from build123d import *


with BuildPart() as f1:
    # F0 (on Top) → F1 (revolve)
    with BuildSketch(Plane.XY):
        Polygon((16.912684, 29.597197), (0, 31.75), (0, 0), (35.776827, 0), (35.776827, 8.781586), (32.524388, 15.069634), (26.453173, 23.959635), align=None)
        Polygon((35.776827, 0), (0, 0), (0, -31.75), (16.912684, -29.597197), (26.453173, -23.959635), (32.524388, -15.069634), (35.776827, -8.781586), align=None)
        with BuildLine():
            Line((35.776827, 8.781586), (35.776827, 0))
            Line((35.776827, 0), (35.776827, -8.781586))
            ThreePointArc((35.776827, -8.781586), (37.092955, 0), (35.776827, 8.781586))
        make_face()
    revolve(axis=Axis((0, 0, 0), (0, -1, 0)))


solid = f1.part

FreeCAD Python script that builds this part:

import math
import FreeCAD as App
import Part
import Sketcher

V = App.Vector
Q = App.Units.Quantity

doc = App.newDocument("Part")
body = doc.addObject("PartDesign::Body", "Body")

# Sketch on XY plane
sketch1 = body.newObject("Sketcher::SketchObject", "Sketch")
sketch1.AttachmentSupport = (doc.getObject("XY_Plane"), [""])
sketch1.MapMode = "FlatFace"
sketch1.addGeometry(Part.LineSegment(V(17, 30, 0), V(0, 32, 0)), False)
sketch1.addGeometry(Part.LineSegment(V(0, 32, 0), V(0, -32, 0)), False)
sketch1.addGeometry(Part.LineSegment(V(0, -32, 0), V(17, -30, 0)), False)
sketch1.addGeometry(Part.LineSegment(V(17, -30, 0), V(26, -24, 0)), False)
sketch1.addGeometry(Part.LineSegment(V(26, -24, 0), V(33, -15, 0)), False)
sketch1.addGeometry(Part.LineSegment(V(33, -15, 0), V(36, -9, 0)), False)
sketch1.addGeometry(Part.ArcOfCircle(Part.Circle(V(7, 0, 0), V(0, 0, 1), 30), math.radians(-17), math.radians(17)), False)
sketch1.addGeometry(Part.LineSegment(V(36, 9, 0), V(33, 15, 0)), False)
sketch1.addGeometry(Part.LineSegment(V(33, 15, 0), V(26, 24, 0)), False)
sketch1.addGeometry(Part.LineSegment(V(26, 24, 0), V(17, 30, 0)), False)
sketch1.addConstraint(Sketcher.Constraint("Coincident", 0, 2, 1, 1))
sketch1.addConstraint(Sketcher.Constraint("Coincident", 1, 2, 2, 1))
sketch1.addConstraint(Sketcher.Constraint("Coincident", 2, 2, 3, 1))
sketch1.addConstraint(Sketcher.Constraint("Coincident", 3, 2, 4, 1))
sketch1.addConstraint(Sketcher.Constraint("Coincident", 4, 2, 5, 1))
sketch1.addConstraint(Sketcher.Constraint("Coincident", 5, 2, 6, 1))
sketch1.addConstraint(Sketcher.Constraint("Coincident", 6, 2, 7, 1))
sketch1.addConstraint(Sketcher.Constraint("Coincident", 7, 2, 8, 1))
sketch1.addConstraint(Sketcher.Constraint("Coincident", 8, 2, 9, 1))
sketch1.addConstraint(Sketcher.Constraint("Coincident", 9, 2, 0, 1))
sketch1.addConstraint(Sketcher.Constraint("Vertical", 1))
sketch1.addConstraint(Sketcher.Constraint("Symmetric", 0, 2, 1, 2, -1, 1))
sketch1.addConstraint(Sketcher.Constraint("Symmetric", 5, 2, 6, 2, -1))
sketch1.addConstraint(Sketcher.Constraint("Symmetric", 4, 2, 7, 2, -1))
sketch1.addConstraint(Sketcher.Constraint("Symmetric", 3, 2, 8, 2, -1))
sketch1.addConstraint(Sketcher.Constraint("Symmetric", 2, 2, 9, 2, -1))
sketch1.addConstraint(Sketcher.Constraint("DistanceY", 1, 2, 1, 1, Q("2.5 in")))
sketch1.addConstraint(Sketcher.Constraint("DistanceY", 3, 2, 4, 2, Q("0.35 in")))
sketch1.addConstraint(Sketcher.Constraint("Radius", 6, 29.954703))
sketch1.addConstraint(Sketcher.Constraint("Distance", 5, 7.0794))
sketch1.addConstraint(Sketcher.Constraint("DistanceX", -1, 1, 4, 2, 32.524388))
sketch1.addConstraint(Sketcher.Constraint("DistanceX", 6, 3, 2, 2, 9.774432))
sketch1.addConstraint(Sketcher.Constraint("DistanceX", 2, 2, 3, 2, 9.540489))
sketch1.addConstraint(Sketcher.Constraint("DistanceX", 4, 2, 5, 2, 3.252439))
sketch1.addConstraint(Sketcher.Constraint("DistanceY", 2, 2, 5, 2, 20.815611))
sketch1.addConstraint(Sketcher.Constraint("DistanceY", 5, 2, 6, 2, 17.563172))
revolution = body.newObject("PartDesign::Revolution", "Revolution")
revolution.Profile = sketch1
revolution.ReferenceAxis = (sketch1, ["V_Axis"])
revolution.Angle = 360

doc.recompute()
